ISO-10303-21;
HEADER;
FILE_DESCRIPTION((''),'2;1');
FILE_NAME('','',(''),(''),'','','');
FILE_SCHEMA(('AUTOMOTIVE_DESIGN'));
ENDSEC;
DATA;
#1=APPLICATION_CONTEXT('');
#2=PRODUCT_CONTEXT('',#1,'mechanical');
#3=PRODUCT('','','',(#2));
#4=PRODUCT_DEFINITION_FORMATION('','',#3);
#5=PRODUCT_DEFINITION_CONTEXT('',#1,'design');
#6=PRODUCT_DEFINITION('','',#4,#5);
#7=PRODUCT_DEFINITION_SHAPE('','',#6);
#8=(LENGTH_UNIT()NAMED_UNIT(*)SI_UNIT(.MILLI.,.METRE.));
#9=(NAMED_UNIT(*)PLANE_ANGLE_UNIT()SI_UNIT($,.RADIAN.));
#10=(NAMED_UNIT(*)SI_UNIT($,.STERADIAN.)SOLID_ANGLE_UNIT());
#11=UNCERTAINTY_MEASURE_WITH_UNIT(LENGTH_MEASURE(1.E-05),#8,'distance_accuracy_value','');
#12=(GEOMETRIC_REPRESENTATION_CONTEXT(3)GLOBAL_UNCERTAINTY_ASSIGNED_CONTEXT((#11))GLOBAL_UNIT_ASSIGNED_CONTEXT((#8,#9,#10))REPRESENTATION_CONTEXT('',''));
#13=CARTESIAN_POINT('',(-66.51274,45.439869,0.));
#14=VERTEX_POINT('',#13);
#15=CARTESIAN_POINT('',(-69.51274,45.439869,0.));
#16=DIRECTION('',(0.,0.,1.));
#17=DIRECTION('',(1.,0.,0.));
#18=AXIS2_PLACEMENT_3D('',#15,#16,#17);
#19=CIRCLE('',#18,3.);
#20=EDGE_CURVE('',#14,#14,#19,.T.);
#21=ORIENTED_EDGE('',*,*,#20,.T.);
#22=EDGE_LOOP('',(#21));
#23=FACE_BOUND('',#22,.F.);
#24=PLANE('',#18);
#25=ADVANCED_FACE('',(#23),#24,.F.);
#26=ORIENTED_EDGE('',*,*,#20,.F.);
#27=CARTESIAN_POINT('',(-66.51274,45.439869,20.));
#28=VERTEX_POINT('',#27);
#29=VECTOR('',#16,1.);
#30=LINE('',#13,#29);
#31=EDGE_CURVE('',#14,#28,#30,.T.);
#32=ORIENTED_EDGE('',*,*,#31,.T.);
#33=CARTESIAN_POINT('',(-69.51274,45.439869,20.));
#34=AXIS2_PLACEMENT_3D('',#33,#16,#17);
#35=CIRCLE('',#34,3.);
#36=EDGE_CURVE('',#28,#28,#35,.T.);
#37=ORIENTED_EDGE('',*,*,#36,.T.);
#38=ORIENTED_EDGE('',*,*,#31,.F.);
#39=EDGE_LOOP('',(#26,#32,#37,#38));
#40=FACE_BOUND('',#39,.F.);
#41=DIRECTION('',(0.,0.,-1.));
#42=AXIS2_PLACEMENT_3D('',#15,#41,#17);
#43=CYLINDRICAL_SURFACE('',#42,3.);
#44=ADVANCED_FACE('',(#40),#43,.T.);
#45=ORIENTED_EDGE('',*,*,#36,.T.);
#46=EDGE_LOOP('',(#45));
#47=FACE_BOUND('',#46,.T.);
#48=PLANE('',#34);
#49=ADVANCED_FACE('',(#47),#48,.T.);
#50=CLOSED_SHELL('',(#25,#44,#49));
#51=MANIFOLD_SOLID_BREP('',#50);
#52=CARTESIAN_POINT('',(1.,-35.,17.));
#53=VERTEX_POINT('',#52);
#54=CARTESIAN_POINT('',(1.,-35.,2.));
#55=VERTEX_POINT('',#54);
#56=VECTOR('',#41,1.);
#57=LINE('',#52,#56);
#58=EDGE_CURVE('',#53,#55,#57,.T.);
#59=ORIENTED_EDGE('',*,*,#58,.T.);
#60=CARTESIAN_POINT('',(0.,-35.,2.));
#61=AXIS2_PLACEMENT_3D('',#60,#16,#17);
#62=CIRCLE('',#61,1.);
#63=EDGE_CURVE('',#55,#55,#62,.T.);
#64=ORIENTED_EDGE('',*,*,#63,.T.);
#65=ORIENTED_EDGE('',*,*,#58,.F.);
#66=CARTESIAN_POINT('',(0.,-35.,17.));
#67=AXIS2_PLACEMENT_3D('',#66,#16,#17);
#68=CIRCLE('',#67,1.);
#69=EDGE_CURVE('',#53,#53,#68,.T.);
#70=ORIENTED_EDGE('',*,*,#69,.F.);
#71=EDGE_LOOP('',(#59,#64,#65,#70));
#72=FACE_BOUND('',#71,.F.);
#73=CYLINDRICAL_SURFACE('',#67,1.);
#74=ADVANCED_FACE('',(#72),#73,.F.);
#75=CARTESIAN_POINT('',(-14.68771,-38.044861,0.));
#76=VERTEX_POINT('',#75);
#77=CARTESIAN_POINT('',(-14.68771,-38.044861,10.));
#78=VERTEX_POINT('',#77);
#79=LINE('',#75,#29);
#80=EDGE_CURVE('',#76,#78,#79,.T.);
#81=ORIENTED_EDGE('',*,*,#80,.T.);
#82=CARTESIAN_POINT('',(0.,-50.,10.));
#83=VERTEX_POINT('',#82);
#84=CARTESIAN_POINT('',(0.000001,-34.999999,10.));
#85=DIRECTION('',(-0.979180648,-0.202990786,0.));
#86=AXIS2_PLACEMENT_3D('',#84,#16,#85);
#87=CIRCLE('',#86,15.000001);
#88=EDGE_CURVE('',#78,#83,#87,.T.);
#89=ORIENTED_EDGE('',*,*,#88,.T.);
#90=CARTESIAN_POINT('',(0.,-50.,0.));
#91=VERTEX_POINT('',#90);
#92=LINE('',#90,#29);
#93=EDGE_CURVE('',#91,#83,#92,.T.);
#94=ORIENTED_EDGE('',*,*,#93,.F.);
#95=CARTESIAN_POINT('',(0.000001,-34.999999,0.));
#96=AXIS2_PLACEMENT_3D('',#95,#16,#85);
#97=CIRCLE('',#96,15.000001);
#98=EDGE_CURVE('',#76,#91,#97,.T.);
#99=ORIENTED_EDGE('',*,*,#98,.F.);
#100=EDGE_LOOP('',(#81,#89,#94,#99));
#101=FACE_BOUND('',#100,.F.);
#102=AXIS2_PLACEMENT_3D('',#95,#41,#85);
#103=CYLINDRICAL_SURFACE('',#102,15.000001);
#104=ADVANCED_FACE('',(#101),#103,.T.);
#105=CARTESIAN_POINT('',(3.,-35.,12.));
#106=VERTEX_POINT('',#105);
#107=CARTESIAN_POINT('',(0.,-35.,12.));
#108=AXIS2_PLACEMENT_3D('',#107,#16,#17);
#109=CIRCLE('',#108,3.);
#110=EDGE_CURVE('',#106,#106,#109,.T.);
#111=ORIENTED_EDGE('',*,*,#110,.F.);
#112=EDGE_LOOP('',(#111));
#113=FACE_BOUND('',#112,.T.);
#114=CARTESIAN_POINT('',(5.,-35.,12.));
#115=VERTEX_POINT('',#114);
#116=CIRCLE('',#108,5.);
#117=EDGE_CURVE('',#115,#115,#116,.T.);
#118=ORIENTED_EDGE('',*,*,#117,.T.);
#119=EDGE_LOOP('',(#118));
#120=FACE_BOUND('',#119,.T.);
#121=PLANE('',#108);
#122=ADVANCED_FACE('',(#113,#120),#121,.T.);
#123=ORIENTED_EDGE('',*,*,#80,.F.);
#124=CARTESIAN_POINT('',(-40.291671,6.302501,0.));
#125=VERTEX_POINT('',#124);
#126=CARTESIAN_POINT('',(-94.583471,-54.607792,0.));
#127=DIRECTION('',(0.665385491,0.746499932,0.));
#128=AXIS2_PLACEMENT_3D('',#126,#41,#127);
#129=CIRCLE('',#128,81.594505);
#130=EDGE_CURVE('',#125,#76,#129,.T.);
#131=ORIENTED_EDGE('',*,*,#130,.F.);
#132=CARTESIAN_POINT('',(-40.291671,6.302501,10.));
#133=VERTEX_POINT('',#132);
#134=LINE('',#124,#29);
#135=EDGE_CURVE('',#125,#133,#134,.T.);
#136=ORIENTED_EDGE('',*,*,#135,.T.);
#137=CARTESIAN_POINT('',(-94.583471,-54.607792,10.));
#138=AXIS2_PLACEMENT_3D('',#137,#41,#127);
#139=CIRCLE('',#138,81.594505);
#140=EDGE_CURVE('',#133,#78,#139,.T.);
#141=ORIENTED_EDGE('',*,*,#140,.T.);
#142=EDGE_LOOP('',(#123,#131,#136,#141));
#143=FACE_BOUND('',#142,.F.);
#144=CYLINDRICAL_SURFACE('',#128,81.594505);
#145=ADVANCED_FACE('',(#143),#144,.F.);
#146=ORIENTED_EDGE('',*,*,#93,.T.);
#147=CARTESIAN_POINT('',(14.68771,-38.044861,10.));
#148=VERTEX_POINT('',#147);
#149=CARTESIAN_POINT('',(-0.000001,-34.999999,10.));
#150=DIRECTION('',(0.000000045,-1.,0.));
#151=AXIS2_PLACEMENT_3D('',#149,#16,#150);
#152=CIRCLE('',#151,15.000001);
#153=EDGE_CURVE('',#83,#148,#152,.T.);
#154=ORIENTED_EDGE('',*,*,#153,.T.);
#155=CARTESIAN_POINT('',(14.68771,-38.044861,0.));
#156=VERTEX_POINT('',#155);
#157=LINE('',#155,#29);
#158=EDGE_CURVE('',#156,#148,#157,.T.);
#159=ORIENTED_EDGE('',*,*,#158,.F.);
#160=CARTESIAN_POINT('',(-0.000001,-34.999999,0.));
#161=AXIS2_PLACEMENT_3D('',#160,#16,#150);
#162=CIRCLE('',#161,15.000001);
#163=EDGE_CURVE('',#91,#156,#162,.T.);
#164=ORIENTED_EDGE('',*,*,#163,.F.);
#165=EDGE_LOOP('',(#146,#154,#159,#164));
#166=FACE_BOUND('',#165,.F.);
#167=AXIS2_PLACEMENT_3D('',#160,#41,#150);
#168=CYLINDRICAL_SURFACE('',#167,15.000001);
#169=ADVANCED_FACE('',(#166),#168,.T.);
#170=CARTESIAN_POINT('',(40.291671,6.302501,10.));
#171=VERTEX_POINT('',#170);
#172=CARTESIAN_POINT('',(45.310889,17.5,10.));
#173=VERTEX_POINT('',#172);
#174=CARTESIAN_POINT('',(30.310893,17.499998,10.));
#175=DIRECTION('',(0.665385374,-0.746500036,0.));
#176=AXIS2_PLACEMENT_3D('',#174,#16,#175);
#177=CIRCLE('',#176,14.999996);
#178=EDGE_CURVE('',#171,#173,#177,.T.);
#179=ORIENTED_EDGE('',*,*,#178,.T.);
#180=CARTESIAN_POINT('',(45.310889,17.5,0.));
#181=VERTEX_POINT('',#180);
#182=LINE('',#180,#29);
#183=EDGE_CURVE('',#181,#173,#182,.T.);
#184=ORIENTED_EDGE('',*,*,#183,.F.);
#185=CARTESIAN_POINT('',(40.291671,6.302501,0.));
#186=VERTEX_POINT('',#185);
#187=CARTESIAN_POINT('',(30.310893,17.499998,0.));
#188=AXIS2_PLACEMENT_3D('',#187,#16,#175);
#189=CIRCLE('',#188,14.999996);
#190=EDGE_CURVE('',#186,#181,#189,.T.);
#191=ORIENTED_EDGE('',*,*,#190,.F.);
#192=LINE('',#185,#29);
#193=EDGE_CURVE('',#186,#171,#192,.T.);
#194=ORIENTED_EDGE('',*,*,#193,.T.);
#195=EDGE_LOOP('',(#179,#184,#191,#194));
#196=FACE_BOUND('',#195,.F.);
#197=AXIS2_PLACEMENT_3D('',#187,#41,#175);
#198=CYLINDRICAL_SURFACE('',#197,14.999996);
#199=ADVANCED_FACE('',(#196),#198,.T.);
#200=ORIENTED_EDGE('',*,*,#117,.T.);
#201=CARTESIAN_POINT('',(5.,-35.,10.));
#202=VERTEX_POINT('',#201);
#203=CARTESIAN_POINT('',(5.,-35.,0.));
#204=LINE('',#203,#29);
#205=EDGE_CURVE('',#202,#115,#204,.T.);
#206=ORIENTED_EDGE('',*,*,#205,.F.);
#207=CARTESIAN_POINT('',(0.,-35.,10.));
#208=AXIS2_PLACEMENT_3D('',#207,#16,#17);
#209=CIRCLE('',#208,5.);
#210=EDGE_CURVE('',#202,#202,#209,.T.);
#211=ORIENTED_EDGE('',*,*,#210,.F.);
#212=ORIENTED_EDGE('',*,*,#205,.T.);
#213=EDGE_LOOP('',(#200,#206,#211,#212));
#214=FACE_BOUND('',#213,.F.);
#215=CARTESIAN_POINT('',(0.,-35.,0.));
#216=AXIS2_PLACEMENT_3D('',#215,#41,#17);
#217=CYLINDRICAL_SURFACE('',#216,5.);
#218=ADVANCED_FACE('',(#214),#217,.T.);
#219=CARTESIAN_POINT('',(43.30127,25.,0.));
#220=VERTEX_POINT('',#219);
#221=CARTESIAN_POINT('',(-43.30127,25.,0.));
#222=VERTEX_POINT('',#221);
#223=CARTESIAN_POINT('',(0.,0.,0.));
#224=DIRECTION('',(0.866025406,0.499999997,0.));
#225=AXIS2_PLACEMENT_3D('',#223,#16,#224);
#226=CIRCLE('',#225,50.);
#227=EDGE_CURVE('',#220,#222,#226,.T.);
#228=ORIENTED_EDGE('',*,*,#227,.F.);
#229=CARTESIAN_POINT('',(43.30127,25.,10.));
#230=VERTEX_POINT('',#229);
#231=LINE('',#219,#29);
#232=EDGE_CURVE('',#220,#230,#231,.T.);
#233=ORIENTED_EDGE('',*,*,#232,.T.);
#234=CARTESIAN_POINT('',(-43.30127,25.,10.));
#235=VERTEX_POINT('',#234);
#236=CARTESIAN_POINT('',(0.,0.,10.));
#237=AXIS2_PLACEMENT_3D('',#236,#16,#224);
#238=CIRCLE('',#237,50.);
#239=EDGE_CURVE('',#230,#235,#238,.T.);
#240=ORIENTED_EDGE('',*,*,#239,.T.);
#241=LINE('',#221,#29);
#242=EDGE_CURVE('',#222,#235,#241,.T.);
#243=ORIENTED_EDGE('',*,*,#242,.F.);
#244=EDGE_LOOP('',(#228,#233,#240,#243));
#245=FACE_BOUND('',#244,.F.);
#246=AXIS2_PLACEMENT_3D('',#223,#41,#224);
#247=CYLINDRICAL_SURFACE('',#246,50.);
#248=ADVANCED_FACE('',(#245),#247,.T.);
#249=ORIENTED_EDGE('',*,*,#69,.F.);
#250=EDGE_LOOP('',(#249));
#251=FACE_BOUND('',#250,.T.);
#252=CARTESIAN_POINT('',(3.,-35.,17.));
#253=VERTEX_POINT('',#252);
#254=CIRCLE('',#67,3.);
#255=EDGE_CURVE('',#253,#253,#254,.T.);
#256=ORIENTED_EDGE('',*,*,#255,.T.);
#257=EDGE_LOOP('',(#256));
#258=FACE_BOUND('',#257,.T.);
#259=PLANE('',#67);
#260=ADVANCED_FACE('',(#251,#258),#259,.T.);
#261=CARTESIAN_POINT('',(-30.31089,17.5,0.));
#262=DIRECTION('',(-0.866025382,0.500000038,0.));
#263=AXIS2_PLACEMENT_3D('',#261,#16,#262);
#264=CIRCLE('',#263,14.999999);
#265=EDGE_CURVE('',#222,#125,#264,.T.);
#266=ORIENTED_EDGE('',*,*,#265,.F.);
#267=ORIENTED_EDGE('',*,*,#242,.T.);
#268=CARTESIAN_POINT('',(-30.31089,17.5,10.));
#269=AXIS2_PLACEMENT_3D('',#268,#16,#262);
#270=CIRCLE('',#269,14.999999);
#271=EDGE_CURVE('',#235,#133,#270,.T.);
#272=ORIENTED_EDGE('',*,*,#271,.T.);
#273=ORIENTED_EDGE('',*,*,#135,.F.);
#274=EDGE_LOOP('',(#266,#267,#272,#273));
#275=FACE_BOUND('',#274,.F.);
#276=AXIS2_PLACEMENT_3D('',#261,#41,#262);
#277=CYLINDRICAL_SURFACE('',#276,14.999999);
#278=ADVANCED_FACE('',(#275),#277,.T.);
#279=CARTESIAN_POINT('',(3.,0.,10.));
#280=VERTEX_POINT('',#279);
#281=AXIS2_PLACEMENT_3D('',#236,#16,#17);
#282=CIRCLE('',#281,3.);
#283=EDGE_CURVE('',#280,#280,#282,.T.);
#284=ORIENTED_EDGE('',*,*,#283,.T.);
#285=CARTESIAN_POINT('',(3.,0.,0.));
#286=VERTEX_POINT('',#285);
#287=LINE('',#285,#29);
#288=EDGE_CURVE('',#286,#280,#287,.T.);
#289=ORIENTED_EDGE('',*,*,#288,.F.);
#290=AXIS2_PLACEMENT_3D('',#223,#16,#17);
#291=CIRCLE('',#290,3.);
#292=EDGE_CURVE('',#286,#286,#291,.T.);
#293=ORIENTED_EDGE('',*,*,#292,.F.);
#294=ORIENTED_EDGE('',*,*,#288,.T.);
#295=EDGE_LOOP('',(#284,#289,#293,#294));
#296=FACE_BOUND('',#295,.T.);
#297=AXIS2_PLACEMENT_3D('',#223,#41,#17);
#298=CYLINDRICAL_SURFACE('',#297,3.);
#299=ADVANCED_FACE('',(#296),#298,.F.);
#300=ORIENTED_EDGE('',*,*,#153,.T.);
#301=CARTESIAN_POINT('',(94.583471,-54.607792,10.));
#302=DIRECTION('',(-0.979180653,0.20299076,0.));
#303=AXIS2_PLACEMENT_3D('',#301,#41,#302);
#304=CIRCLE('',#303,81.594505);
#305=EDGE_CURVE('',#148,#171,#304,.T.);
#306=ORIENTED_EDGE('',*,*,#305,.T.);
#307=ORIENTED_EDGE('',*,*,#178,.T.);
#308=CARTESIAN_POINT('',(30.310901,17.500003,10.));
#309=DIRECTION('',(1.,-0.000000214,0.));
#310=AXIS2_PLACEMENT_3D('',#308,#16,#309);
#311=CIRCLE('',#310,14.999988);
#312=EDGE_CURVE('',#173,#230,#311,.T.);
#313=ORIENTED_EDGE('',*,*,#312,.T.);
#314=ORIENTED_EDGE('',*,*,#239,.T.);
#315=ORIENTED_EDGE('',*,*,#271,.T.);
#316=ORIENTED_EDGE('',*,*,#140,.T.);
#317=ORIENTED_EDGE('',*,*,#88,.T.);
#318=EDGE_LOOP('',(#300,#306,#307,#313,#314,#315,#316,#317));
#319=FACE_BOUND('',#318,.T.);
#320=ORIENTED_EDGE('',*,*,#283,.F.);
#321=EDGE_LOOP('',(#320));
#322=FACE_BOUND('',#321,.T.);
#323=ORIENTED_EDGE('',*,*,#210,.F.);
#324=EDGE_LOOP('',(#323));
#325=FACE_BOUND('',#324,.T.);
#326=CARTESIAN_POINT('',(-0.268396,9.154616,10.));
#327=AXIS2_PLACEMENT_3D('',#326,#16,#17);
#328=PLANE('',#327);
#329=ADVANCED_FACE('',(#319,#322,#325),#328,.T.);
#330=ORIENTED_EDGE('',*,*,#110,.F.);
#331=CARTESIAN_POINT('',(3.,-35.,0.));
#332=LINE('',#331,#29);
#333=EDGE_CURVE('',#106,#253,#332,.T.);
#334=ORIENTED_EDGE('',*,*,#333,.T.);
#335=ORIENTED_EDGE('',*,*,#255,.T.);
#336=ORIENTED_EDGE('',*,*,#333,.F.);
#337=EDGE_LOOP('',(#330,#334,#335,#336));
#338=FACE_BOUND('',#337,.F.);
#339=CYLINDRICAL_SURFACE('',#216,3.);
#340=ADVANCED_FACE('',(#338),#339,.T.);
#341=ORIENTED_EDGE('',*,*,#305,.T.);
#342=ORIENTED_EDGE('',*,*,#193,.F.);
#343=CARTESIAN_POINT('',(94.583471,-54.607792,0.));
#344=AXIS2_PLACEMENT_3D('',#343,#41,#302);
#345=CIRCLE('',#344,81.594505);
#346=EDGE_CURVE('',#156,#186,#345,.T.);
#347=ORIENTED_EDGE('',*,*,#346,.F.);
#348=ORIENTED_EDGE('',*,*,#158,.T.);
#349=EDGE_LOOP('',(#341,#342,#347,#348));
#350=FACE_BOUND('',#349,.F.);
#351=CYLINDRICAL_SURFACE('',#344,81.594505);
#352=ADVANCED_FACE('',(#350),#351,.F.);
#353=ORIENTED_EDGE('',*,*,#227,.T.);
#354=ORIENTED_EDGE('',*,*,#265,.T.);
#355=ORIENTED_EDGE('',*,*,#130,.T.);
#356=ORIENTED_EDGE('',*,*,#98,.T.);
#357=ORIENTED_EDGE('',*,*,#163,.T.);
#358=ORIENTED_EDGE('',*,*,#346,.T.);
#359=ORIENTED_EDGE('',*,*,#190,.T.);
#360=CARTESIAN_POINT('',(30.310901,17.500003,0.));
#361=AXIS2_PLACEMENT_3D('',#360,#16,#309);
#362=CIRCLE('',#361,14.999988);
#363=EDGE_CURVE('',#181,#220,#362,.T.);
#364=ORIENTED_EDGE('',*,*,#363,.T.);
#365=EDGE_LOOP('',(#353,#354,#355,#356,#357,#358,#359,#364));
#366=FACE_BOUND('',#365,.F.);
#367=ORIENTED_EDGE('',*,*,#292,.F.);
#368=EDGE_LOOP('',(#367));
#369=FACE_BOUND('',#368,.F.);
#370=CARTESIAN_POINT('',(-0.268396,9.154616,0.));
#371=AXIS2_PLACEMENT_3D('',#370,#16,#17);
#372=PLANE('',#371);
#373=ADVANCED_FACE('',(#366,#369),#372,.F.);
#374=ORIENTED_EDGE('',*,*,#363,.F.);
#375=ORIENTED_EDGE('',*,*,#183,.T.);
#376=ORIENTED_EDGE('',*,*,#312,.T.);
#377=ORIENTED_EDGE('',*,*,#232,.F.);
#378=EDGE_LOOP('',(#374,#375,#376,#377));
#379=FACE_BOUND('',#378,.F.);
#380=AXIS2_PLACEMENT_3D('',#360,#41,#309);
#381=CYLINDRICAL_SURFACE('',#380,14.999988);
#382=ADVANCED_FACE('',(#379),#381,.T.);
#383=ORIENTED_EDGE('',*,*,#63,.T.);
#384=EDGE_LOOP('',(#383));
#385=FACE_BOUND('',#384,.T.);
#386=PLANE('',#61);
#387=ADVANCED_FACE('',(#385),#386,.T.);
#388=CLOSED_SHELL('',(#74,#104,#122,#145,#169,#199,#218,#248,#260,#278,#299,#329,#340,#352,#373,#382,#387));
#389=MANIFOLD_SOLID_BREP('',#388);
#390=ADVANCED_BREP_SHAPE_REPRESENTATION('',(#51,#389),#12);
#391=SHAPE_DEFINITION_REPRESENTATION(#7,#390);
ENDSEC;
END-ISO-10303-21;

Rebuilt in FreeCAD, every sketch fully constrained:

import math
import FreeCAD as App
import Part
import Sketcher
Q = App.Units.Quantity

doc = App.newDocument("Part")
body = doc.addObject("PartDesign::Body", "Body")

# Sketch on XY plane
sketch1 = body.newObject("Sketcher::SketchObject", "Sketch")
sketch1.AttachmentSupport = (doc.getObject("XY_Plane"), [""])
sketch1.MapMode = "FlatFace"
sketch1.addGeometry([
    Part.ArcOfCircle(Part.Circle(App.Vector(0, 0, 0), App.Vector(0, 0, 1), 50), math.radians(30), math.radians(150)),  # 0
    Part.ArcOfCircle(Part.Circle(App.Vector(-30.3, 17.5, 0), App.Vector(0, 0, 1), 15), math.radians(150), math.radians(228)),  # 1
    Part.ArcOfCircle(Part.Circle(App.Vector(-94.6, -54.6, 0), App.Vector(0, 0, 1), 81.6), math.radians(12), math.radians(48)),  # 2
    Part.ArcOfCircle(Part.Circle(App.Vector(0, -35, 0), App.Vector(0, 0, 1), 15), math.radians(-168), math.radians(-90)),  # 3
    Part.ArcOfCircle(Part.Circle(App.Vector(0, -35, 0), App.Vector(0, 0, 1), 15), math.radians(-90), math.radians(-12)),  # 4
    Part.ArcOfCircle(Part.Circle(App.Vector(94.6, -54.6, 0), App.Vector(0, 0, 1), 81.6), math.radians(132), math.radians(168)),  # 5
    Part.ArcOfCircle(Part.Circle(App.Vector(30.3, 17.5, 0), App.Vector(0, 0, 1), 15), math.radians(-48), math.radians(0)),  # 6
    Part.ArcOfCircle(Part.Circle(App.Vector(30.3, 17.5, 0), App.Vector(0, 0, 1), 15), math.radians(0), math.radians(30)),  # 7
    Part.Circle(App.Vector(0, -35, 0), App.Vector(0, 0, 1), 5),  # 8
    Part.Circle(App.Vector(0, 0, 0), App.Vector(0, 0, 1), 3),  # 9
], False)
sketch1.addConstraint([
    Sketcher.Constraint("Tangent", 0, 2, 1, 1),
    Sketcher.Constraint("Tangent", 1, 2, 2, 2),
    Sketcher.Constraint("Tangent", 2, 1, 3, 1),
    Sketcher.Constraint("Tangent", 3, 2, 4, 1),
    Sketcher.Constraint("Tangent", 4, 2, 5, 2),
    Sketcher.Constraint("Tangent", 5, 1, 6, 1),
    Sketcher.Constraint("Tangent", 6, 2, 7, 1),
    Sketcher.Constraint("Tangent", 7, 2, 0, 1),
    Sketcher.Constraint("Coincident", 0, 3, -1, 1),
    Sketcher.Constraint("Coincident", 9, 3, -1, 1),
    Sketcher.Constraint("Coincident", 8, 3, 3, 3),
    Sketcher.Constraint("Equal", 3, 4),
    Sketcher.Constraint("Equal", 2, 5),
    Sketcher.Constraint("Symmetric", 2, 3, 5, 3, -2),
    Sketcher.Constraint("Symmetric", 1, 3, 6, 3, -2),
    Sketcher.Constraint("PointOnObject", 3, 2, -2),
    Sketcher.Constraint("Horizontal", 1, 3, 6, 2),
    Sketcher.Constraint("Diameter", 8, Q("10 mm")),
    Sketcher.Constraint("Diameter", 9, Q("6 mm")),
    Sketcher.Constraint("Radius", 0, Q("50 mm")),
    Sketcher.Constraint("Radius", 1, Q("14.999999 mm")),
    Sketcher.Constraint("Radius", 3, Q("15.000001 mm")),
    Sketcher.Constraint("DistanceY", 3, 3, -1, 1, Q("34.999999 mm")),
    Sketcher.Constraint("DistanceY", -1, 1, 0, 2, Q("25 mm")),
    Sketcher.Constraint("Radius", 2, Q("81.594505 mm")),
])
pad1 = body.newObject("PartDesign::Pad", "Pad")
pad1.Profile = sketch1
pad1.Length = 10

# Sketch on XY plane
sketch2 = body.newObject("Sketcher::SketchObject", "Sketch001")
sketch2.AttachmentSupport = (doc.getObject("XY_Plane"), [""])
sketch2.MapMode = "FlatFace"
sketch2.addGeometry([
    Part.Circle(App.Vector(0, -35, 0), App.Vector(0, 0, 1), 5),
    Part.Circle(App.Vector(0, -35, 0), App.Vector(0, 0, 1), 3),
], False)
sketch2.addConstraint([
    Sketcher.Constraint("Coincident", 1, 3, 0, 3),
    Sketcher.Constraint("PointOnObject", 0, 3, -2),
    Sketcher.Constraint("Diameter", 0, Q("10 mm")),
    Sketcher.Constraint("Diameter", 1, Q("6 mm")),
    Sketcher.Constraint("DistanceY", 0, 3, -1, 1, Q("35 mm")),
])
pad2 = body.newObject("PartDesign::Pad", "Pad001")
pad2.Profile = sketch2
pad2.Length = 12

# Sketch on XY plane
sketch3 = body.newObject("Sketcher::SketchObject", "Sketch002")
sketch3.AttachmentSupport = (doc.getObject("XY_Plane"), [""])
sketch3.MapMode = "FlatFace"
sketch3.addGeometry(Part.Circle(App.Vector(0, -35, 0), App.Vector(0, 0, 1), 3), False)
sketch3.addConstraint([
    Sketcher.Constraint("PointOnObject", 0, 3, -2),
    Sketcher.Constraint("Diameter", 0, Q("6 mm")),
    Sketcher.Constraint("DistanceY", 0, 3, -1, 1, Q("35 mm")),
])
pad3 = body.newObject("PartDesign::Pad", "Pad002")
pad3.Profile = sketch3
pad3.Length = 17

# Sketch on XY plane
sketch4 = body.newObject("Sketcher::SketchObject", "Sketch003")
sketch4.AttachmentSupport = (doc.getObject("XY_Plane"), [""])
sketch4.MapMode = "FlatFace"
sketch4.AttachmentOffset = App.Placement(App.Vector(0, 0, 17), App.Rotation())
sketch4.addGeometry(Part.Circle(App.Vector(0, -35, 0), App.Vector(0, 0, 1), 1), False)
sketch4.addConstraint([
    Sketcher.Constraint("PointOnObject", 0, 3, -2),
    Sketcher.Constraint("Diameter", 0, Q("2 mm")),
    Sketcher.Constraint("DistanceY", 0, 3, -1, 1, Q("35 mm")),
])
pocket1 = body.newObject("PartDesign::Pocket", "Pocket")
pocket1.Profile = sketch4
pocket1.Length = 15
body2 = doc.addObject("PartDesign::Body", "Body001")

# Sketch on XY plane
sketch5 = body2.newObject("Sketcher::SketchObject", "Sketch004")
sketch5.AttachmentSupport = (doc.getObject("XY_Plane001"), [""])
sketch5.MapMode = "FlatFace"
sketch5.addGeometry(Part.Circle(App.Vector(-69.5, 45.4, 0), App.Vector(0, 0, 1), 3), False)
sketch5.addConstraint([
    Sketcher.Constraint("Diameter", 0, Q("6 mm")),
    Sketcher.Constraint("DistanceX", 0, 3, -1, 1, Q("69.51274 mm")),
    Sketcher.Constraint("DistanceY", -1, 1, 0, 3, Q("45.439869 mm")),
])
pad4 = body2.newObject("PartDesign::Pad", "Pad003")
pad4.Profile = sketch5
pad4.Length = 20

doc.recompute()
